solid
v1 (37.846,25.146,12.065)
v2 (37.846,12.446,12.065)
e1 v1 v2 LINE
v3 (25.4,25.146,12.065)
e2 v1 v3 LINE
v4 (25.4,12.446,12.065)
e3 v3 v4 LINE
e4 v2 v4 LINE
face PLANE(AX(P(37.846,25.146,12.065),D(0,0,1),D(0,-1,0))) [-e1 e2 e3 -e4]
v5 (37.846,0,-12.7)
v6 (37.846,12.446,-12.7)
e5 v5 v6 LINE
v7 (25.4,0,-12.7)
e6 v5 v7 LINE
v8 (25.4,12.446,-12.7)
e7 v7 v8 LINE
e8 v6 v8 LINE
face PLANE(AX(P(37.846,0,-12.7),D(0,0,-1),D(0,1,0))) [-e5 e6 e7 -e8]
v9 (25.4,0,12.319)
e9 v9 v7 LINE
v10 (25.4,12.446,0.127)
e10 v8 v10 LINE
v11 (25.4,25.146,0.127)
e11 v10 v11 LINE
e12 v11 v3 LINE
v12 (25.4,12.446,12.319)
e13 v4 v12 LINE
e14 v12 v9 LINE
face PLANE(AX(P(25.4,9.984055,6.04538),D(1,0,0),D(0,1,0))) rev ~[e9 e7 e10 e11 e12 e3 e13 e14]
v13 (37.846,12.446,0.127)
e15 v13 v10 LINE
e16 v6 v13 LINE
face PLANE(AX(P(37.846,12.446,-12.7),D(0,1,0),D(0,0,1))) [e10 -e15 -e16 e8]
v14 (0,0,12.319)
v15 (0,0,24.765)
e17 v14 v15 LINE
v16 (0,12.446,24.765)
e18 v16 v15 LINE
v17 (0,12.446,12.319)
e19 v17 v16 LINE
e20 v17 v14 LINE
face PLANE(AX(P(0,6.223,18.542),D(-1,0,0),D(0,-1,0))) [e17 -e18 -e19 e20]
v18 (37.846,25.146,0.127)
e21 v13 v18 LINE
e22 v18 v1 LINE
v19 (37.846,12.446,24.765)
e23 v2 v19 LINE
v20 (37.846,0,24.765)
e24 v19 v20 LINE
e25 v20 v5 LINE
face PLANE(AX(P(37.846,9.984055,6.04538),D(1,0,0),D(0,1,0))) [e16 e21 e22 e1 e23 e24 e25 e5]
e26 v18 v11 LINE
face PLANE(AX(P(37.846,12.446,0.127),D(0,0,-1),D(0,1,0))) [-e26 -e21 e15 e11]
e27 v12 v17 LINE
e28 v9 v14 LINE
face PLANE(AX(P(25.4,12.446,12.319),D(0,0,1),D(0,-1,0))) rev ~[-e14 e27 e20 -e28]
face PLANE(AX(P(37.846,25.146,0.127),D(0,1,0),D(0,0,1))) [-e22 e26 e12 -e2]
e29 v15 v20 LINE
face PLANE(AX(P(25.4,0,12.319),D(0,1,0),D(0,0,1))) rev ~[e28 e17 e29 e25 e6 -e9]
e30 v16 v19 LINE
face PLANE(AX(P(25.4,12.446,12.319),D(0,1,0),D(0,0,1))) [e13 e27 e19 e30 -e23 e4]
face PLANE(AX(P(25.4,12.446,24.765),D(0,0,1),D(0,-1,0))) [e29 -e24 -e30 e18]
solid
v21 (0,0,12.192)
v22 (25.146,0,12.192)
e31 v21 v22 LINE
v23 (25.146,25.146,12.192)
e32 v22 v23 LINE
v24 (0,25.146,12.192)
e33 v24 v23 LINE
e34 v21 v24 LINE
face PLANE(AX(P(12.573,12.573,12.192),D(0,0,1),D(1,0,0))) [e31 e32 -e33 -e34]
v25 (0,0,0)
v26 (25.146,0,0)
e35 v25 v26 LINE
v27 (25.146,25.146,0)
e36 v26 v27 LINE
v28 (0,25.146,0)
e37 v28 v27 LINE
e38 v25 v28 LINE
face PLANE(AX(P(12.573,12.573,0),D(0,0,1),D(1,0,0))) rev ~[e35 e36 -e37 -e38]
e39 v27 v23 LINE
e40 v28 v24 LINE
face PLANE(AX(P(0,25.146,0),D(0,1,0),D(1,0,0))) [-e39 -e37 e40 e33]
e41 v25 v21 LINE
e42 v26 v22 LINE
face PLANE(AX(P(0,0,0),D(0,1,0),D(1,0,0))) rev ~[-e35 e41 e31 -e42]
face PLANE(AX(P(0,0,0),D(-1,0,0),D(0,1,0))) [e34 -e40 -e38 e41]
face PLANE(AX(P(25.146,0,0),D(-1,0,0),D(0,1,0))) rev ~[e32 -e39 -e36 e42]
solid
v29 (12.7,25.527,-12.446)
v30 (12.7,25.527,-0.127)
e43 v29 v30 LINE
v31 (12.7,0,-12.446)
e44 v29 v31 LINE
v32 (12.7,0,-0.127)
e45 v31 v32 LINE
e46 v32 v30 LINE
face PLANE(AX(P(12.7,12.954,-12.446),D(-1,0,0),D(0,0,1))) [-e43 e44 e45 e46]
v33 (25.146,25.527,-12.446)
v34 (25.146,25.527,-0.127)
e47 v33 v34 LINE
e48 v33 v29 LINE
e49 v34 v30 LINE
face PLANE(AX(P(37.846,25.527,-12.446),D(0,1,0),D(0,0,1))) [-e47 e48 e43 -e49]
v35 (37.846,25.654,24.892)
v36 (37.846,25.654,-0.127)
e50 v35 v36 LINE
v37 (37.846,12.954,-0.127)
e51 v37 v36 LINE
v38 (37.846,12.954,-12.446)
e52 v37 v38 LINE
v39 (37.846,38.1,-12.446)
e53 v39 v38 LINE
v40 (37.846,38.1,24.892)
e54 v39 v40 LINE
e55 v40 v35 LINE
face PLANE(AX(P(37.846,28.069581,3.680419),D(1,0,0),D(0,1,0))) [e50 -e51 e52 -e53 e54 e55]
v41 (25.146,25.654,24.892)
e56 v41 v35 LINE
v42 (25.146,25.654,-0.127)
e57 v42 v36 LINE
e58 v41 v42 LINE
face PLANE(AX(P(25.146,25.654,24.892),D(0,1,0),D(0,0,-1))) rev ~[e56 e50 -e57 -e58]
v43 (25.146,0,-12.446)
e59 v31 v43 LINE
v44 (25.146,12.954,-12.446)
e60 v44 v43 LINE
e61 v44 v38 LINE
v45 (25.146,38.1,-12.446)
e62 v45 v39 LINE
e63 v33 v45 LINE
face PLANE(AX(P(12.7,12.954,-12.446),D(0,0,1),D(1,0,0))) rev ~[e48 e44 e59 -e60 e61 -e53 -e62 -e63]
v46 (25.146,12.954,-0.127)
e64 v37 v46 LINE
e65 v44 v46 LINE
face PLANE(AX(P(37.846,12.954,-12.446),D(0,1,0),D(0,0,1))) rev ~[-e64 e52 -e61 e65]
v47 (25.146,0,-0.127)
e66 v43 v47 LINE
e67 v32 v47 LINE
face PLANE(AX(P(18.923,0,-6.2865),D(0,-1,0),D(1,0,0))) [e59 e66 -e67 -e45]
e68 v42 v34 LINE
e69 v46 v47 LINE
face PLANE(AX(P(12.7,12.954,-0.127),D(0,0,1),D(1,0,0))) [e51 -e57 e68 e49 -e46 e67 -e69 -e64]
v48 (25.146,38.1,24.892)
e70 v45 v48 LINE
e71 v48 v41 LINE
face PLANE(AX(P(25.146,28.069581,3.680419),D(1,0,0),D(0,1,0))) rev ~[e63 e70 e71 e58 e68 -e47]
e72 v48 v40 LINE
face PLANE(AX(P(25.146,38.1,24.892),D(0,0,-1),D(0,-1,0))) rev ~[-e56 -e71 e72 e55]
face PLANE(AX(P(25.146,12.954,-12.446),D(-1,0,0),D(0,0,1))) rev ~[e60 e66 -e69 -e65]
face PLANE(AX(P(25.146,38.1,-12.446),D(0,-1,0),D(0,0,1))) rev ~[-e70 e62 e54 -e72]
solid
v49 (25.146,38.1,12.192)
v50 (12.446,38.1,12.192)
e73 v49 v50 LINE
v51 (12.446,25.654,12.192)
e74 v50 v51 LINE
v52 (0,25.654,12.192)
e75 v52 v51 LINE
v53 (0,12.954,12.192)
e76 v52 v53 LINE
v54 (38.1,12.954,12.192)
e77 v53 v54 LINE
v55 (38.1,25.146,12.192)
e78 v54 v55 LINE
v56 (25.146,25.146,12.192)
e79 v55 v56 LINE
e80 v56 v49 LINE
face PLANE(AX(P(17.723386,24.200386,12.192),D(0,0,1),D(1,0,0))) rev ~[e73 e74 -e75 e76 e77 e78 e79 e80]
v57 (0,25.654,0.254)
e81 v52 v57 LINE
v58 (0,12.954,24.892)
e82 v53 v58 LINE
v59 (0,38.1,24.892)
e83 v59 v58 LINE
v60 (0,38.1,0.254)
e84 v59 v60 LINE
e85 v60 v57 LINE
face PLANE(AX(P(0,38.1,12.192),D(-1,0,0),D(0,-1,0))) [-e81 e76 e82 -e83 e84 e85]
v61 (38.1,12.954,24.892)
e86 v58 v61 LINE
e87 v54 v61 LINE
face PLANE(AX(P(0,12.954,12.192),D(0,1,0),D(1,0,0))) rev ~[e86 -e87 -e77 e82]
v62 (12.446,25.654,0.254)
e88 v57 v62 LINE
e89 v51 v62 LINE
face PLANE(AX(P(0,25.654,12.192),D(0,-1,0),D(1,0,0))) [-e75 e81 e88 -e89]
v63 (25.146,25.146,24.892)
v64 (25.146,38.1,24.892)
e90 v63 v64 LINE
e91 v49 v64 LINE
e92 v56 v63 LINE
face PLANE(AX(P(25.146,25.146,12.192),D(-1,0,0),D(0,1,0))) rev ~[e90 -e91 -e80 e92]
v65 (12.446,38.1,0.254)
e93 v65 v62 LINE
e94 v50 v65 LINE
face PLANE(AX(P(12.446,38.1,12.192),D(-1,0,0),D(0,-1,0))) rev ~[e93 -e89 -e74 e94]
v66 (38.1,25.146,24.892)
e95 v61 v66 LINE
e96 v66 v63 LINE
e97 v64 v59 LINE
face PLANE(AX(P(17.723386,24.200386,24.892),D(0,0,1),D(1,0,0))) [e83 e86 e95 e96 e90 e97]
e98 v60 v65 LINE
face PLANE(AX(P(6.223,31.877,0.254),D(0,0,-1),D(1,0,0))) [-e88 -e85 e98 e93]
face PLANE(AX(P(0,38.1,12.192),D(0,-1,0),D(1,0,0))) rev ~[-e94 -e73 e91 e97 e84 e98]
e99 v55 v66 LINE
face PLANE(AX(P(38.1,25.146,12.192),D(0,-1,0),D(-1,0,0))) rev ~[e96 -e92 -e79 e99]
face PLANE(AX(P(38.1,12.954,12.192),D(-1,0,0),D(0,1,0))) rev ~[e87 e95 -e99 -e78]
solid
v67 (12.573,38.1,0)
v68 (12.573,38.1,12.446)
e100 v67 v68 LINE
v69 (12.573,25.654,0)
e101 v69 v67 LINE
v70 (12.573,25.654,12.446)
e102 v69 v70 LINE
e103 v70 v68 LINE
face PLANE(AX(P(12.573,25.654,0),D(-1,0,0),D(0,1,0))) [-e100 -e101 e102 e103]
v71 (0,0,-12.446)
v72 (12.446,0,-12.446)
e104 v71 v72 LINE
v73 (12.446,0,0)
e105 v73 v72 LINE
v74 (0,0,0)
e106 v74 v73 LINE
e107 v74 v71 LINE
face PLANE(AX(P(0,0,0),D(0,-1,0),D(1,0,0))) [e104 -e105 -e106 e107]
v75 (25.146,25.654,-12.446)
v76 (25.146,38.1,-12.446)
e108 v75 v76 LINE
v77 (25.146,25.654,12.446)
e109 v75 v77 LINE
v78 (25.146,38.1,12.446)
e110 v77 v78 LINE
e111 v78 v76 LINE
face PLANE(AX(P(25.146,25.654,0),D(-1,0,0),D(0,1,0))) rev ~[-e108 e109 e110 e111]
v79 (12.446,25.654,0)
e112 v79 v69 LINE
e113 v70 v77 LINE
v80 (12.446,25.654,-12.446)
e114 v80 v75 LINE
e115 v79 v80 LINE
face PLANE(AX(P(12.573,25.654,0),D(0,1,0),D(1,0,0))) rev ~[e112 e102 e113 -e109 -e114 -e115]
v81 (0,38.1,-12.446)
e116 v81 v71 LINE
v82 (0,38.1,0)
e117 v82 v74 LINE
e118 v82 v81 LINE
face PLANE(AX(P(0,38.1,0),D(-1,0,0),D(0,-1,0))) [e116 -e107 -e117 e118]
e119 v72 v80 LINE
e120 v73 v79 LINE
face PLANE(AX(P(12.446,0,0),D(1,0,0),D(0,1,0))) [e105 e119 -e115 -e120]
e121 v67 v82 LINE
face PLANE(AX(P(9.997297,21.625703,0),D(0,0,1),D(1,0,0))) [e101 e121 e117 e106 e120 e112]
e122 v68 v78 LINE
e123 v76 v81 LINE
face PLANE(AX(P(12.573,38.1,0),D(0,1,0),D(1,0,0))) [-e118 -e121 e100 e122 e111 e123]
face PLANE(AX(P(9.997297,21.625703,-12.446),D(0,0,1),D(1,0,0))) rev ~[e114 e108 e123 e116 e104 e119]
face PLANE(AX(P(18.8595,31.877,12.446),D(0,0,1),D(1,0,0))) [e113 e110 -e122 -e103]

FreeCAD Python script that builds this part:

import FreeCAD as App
import Part
import Sketcher
Q = App.Units.Quantity


def add_polygon(sketch, points):
    """Adds a closed chain of lines whose ends are joined by coincident constraints."""
    first, n = sketch.GeometryCount, len(points)
    for a, b in zip(points, points[1:] + points[:1]):
        sketch.addGeometry(Part.LineSegment(App.Vector(*a, 0), App.Vector(*b, 0)), False)
    for i in range(n):
        sketch.addConstraint(Sketcher.Constraint("Coincident", first + i, 2, first + (i + 1) % n, 1))

doc = App.newDocument("Part")
params = doc.addObject("Spreadsheet::Sheet", "Params")
for row, (alias, value) in enumerate([
    ("sketch1_width", "0.99 in"),
    ("pad1_length", "0.48 in"),
    ("sketch2_width", "0.5 in"),
    ("sketch2_height", "1.5 in"),
    ("sketch2_width2", "0.49 in"),
    ("pad2_length", "0.49 in"),
    ("sketch3_height", "0.49 in"),
    ("sketch3_width", "0.495 in"),
    ("pad3_length", "0.49 in"),
    ("sketch4_width", "1.5 in"),
    ("sketch4_width2", "0.99 in"),
    ("pad4_length", "0.5 in"),
    ("sketch5_width", "0.49 in"),
    ("pad5_length", "0.47 in"),
    ("sketch6_width", "0.5 in"),
    ("sketch6_width2", "0.99 in"),
    ("sketch6_height", "1.47 in"),
    ("sketch6_height2", "0.985 in"),
    ("pad6_length", "0.5 in"),
    ("sketch7_width", "0.495 in"),
    ("sketch7_height", "0.485 in"),
    ("pad7_length", "0.99 in"),
    ("sketch8_width", "0.49 in"),
    ("sketch8_height", "0.485 in"),
    ("pad8_length", "0.51 in"),
    ("sketch9_width", "0.5 in"),
    ("sketch9_width2", "0.49 in"),
    ("sketch9_height", "0.47 in"),
    ("sketch9_height2", "1.475 in"),
    ("pad9_length", "0.49 in"),
    ("sketch10_width", "0.49 in"),
    ("pad10_length", "1 in"),
], start=1):
    params.set(f"A{row}", alias)
    params.set(f"B{row}", "=" + value)
    params.setAlias(f"B{row}", alias)

body = doc.addObject("PartDesign::Body", "Body")

# Sketch on XY plane
sketch1 = body.newObject("Sketcher::SketchObject", "Sketch")
sketch1.AttachmentSupport = (doc.getObject("XY_Plane"), [""])
sketch1.MapMode = "FlatFace"
add_polygon(sketch1, [(0, 25), (0, 0), (25, 0), (25, 25)])  # lines 0-3
sketch1.addConstraint([
    Sketcher.Constraint("Vertical", 0),
    Sketcher.Constraint("Horizontal", 1),
    Sketcher.Constraint("Vertical", 2),
    Sketcher.Constraint("Horizontal", 3),
    Sketcher.Constraint("Coincident", 0, 2, -1, 1),
    Sketcher.Constraint("Equal", 3, 0),
    Sketcher.Constraint("DistanceX", 1, 1, 1, 2, Q("0.99 in")),
])
sketch1.setExpression("Constraints[10]", "Params.sketch1_width")
pad1 = body.newObject("PartDesign::Pad", "Pad")
pad1.Profile = sketch1
pad1.setExpression("Length", "Params.pad1_length")
body2 = doc.addObject("PartDesign::Body", "Body001")

# Sketch on XY plane
sketch2 = body2.newObject("Sketcher::SketchObject", "Sketch001")
sketch2.AttachmentSupport = (doc.getObject("XY_Plane001"), [""])
sketch2.MapMode = "FlatFace"
add_polygon(sketch2, [(0, 38), (0, 0), (12, 0), (12, 26), (25, 26), (25, 38)])  # lines 0-5
sketch2.addConstraint([
    Sketcher.Constraint("Vertical", 0),
    Sketcher.Constraint("Horizontal", 1),
    Sketcher.Constraint("Vertical", 2),
    Sketcher.Constraint("Horizontal", 3),
    Sketcher.Constraint("Vertical", 4),
    Sketcher.Constraint("Horizontal", 5),
    Sketcher.Constraint("Coincident", 0, 2, -1, 1),
    Sketcher.Constraint("Equal", 1, 4),
    Sketcher.Constraint("DistanceX", 3, 1, 3, 2, Q("0.5 in")),
    Sketcher.Constraint("DistanceY", 0, 2, 0, 1, Q("1.5 in")),
    Sketcher.Constraint("DistanceX", 1, 1, 1, 2, Q("0.49 in")),
])
sketch2.setExpression("Constraints[14]", "Params.sketch2_width")
sketch2.setExpression("Constraints[15]", "Params.sketch2_height")
sketch2.setExpression("Constraints[16]", "Params.sketch2_width2")
pad2 = body2.newObject("PartDesign::Pad", "Pad001")
pad2.Profile = sketch2
pad2.setExpression("Length", "Params.pad2_length")
pad2.Reversed = True

# Sketch on XY plane
sketch3 = body2.newObject("Sketcher::SketchObject", "Sketch002")
sketch3.AttachmentSupport = (doc.getObject("XY_Plane001"), [""])
sketch3.MapMode = "FlatFace"
add_polygon(sketch3, [(13, 38), (13, 26), (25, 26), (25, 38)])  # lines 0-3
sketch3.addConstraint([
    Sketcher.Constraint("Vertical", 0),
    Sketcher.Constraint("Horizontal", 1),
    Sketcher.Constraint("Vertical", 2),
    Sketcher.Constraint("Horizontal", 3),
    Sketcher.Constraint("DistanceY", 0, 2, 0, 1, Q("0.49 in")),
    Sketcher.Constraint("DistanceY", -1, 1, 2, 2, Q("1.5 in")),
    Sketcher.Constraint("DistanceX", 1, 1, 1, 2, Q("0.495 in")),
    Sketcher.Constraint("DistanceX", -1, 1, 1, 2, Q("0.99 in")),
])
sketch3.setExpression("Constraints[8]", "Params.sketch3_height")
sketch3.setExpression("Constraints[10]", "Params.sketch3_width")
pad3 = body2.newObject("PartDesign::Pad", "Pad002")
pad3.Profile = sketch3
pad3.setExpression("Length", "Params.pad3_length")
body3 = doc.addObject("PartDesign::Body", "Body002")

# Sketch on XY plane
sketch4 = body3.newObject("Sketcher::SketchObject", "Sketch003")
sketch4.AttachmentSupport = (doc.getObject("XY_Plane002"), [""])
sketch4.MapMode = "FlatFace"
sketch4.AttachmentOffset = App.Placement(App.Vector(0, 0, 0.48 * 25.4), App.Rotation())
add_polygon(sketch4, [(25, 38), (0, 38), (0, 13), (38, 13), (38, 25), (25, 25)])  # lines 0-5
sketch4.addConstraint([
    Sketcher.Constraint("Horizontal", 0),
    Sketcher.Constraint("Vertical", 1),
    Sketcher.Constraint("Horizontal", 2),
    Sketcher.Constraint("Vertical", 3),
    Sketcher.Constraint("Horizontal", 4),
    Sketcher.Constraint("Vertical", 5),
    Sketcher.Constraint("PointOnObject", 0, 2, -2),
    Sketcher.Constraint("Equal", 0, 1),
    Sketcher.Constraint("Equal", 4, 5),
    Sketcher.Constraint("DistanceX", 2, 1, 2, 2, Q("1.5 in")),
    Sketcher.Constraint("DistanceX", 0, 2, 0, 1, Q("0.99 in")),
    Sketcher.Constraint("DistanceY", -1, 1, 0, 2, Q("1.5 in")),
])
sketch4.setExpression("Constraints[15]", "Params.sketch4_width")
sketch4.setExpression("Constraints[16]", "Params.sketch4_width2")
pad4 = body3.newObject("PartDesign::Pad", "Pad003")
pad4.Profile = sketch4
pad4.setExpression("Length", "Params.pad4_length")

# Sketch on XY plane
sketch5 = body3.newObject("Sketcher::SketchObject", "Sketch004")
sketch5.AttachmentSupport = (doc.getObject("XY_Plane002"), [""])
sketch5.MapMode = "FlatFace"
sketch5.AttachmentOffset = App.Placement(App.Vector(0, 0, 0.48 * 25.4), App.Rotation())
add_polygon(sketch5, [(0, 26), (0, 38), (12, 38), (12, 26)])  # lines 0-3
sketch5.addConstraint([
    Sketcher.Constraint("Vertical", 0),
    Sketcher.Constraint("Horizontal", 1),
    Sketcher.Constraint("Vertical", 2),
    Sketcher.Constraint("Horizontal", 3),
    Sketcher.Constraint("PointOnObject", 0, 2, -2),
    Sketcher.Constraint("Equal", 3, 0),
    Sketcher.Constraint("DistanceX", 1, 1, 1, 2, Q("0.49 in")),
    Sketcher.Constraint("DistanceY", -1, 1, 0, 2, Q("1.5 in")),
])
sketch5.setExpression("Constraints[10]", "Params.sketch5_width")
pad5 = body3.newObject("PartDesign::Pad", "Pad004")
pad5.Profile = sketch5
pad5.setExpression("Length", "Params.pad5_length")
pad5.Reversed = True
body4 = doc.addObject("PartDesign::Body", "Body003")

# Sketch on YZ plane
sketch6 = body4.newObject("Sketcher::SketchObject", "Sketch005")
sketch6.AttachmentSupport = (doc.getObject("YZ_Plane003"), [""])
sketch6.MapMode = "FlatFace"
sketch6.AttachmentOffset = App.Placement(App.Vector(0, 0, 0.99 * 25.4), App.Rotation())
add_polygon(sketch6, [(13, -12), (38, -12), (38, 25), (26, 25), (26, 0), (13, 0)])  # lines 0-5
sketch6.addConstraint([
    Sketcher.Constraint("Horizontal", 0),
    Sketcher.Constraint("Vertical", 1),
    Sketcher.Constraint("Horizontal", 2),
    Sketcher.Constraint("Vertical", 3),
    Sketcher.Constraint("Horizontal", 4),
    Sketcher.Constraint("Vertical", 5),
    Sketcher.Constraint("DistanceX", 4, 2, 4, 1, Q("0.5 in")),
    Sketcher.Constraint("DistanceX", 0, 1, 0, 2, Q("0.99 in")),
    Sketcher.Constraint("DistanceY", 1, 1, 1, 2, Q("1.47 in")),
    Sketcher.Constraint("DistanceX", -1, 1, 0, 2, Q("1.5 in")),
    Sketcher.Constraint("DistanceY", 3, 2, 3, 1, Q("0.985 in")),
    Sketcher.Constraint("DistanceY", 0, 2, -1, 1, Q("0.49 in")),
])
sketch6.setExpression("Constraints[12]", "Params.sketch6_width")
sketch6.setExpression("Constraints[13]", "Params.sketch6_width2")
sketch6.setExpression("Constraints[14]", "Params.sketch6_height")
sketch6.setExpression("Constraints[16]", "Params.sketch6_height2")
pad6 = body4.newObject("PartDesign::Pad", "Pad005")
pad6.Profile = sketch6
pad6.setExpression("Length", "Params.pad6_length")

# Sketch on YZ plane
sketch7 = body4.newObject("Sketcher::SketchObject", "Sketch006")
sketch7.AttachmentSupport = (doc.getObject("YZ_Plane003"), [""])
sketch7.MapMode = "FlatFace"
sketch7.AttachmentOffset = App.Placement(App.Vector(0, 0, 1.49 * 25.4), App.Rotation())
add_polygon(sketch7, [(13, 0), (13, -12), (26, -12), (26, 0)])  # lines 0-3
sketch7.addConstraint([
    Sketcher.Constraint("Vertical", 0),
    Sketcher.Constraint("Horizontal", 1),
    Sketcher.Constraint("Vertical", 2),
    Sketcher.Constraint("Horizontal", 3),
    Sketcher.Constraint("DistanceX", 1, 1, 1, 2, Q("0.495 in")),
    Sketcher.Constraint("DistanceY", 0, 2, 0, 1, Q("0.485 in")),
    Sketcher.Constraint("DistanceX", -1, 1, 0, 2, Q("0.51 in")),
    Sketcher.Constraint("DistanceY", 0, 2, -1, 1, Q("0.49 in")),
])
sketch7.setExpression("Constraints[8]", "Params.sketch7_width")
sketch7.setExpression("Constraints[9]", "Params.sketch7_height")
pad7 = body4.newObject("PartDesign::Pad", "Pad006")
pad7.Profile = sketch7
pad7.setExpression("Length", "Params.pad7_length")
pad7.Reversed = True

# Sketch on XZ plane
sketch8 = body4.newObject("Sketcher::SketchObject", "Sketch007")
sketch8.AttachmentSupport = (doc.getObject("XZ_Plane003"), [""])
sketch8.MapMode = "FlatFace"
sketch8.AttachmentOffset = App.Placement(App.Vector(0, 0, -0.51 * 25.4), App.Rotation())
add_polygon(sketch8, [(13, 0), (13, -12), (25, -12), (25, 0)])  # lines 0-3
sketch8.addConstraint([
    Sketcher.Constraint("Vertical", 0),
    Sketcher.Constraint("Horizontal", 1),
    Sketcher.Constraint("Vertical", 2),
    Sketcher.Constraint("Horizontal", 3),
    Sketcher.Constraint("DistanceX", 1, 1, 1, 2, Q("0.49 in")),
    Sketcher.Constraint("DistanceX", -1, 1, 0, 2, Q("0.5 in")),
    Sketcher.Constraint("DistanceY", 0, 2, 0, 1, Q("0.485 in")),
    Sketcher.Constraint("DistanceY", 0, 2, -1, 1, Q("0.49 in")),
])
sketch8.setExpression("Constraints[8]", "Params.sketch8_width")
sketch8.setExpression("Constraints[10]", "Params.sketch8_height")
pad8 = body4.newObject("PartDesign::Pad", "Pad007")
pad8.Profile = sketch8
pad8.setExpression("Length", "Params.pad8_length")
body5 = doc.addObject("PartDesign::Body", "Body004")

# Sketch on YZ plane
sketch9 = body5.newObject("Sketcher::SketchObject", "Sketch008")
sketch9.AttachmentSupport = (doc.getObject("YZ_Plane004"), [""])
sketch9.MapMode = "FlatFace"
sketch9.AttachmentOffset = App.Placement(App.Vector(0, 0, 1.49 * 25.4), App.Rotation())
add_polygon(sketch9, [(0, 25), (0, -13), (12, -13), (12, 0), (25, 0), (25, 12), (12, 12), (12, 25)])  # lines 0-7
sketch9.addConstraint([
    Sketcher.Constraint("Vertical", 0),
    Sketcher.Constraint("Horizontal", 1),
    Sketcher.Constraint("Vertical", 2),
    Sketcher.Constraint("Horizontal", 3),
    Sketcher.Constraint("Vertical", 4),
    Sketcher.Constraint("Horizontal", 5),
    Sketcher.Constraint("Vertical", 6),
    Sketcher.Constraint("Horizontal", 7),
    Sketcher.Constraint("PointOnObject", 0, 2, -2),
    Sketcher.Constraint("Vertical", 2, 2, 5, 2),
    Sketcher.Constraint("Equal", 5, 6),
    Sketcher.Constraint("DistanceX", 3, 1, 3, 2, Q("0.5 in")),
    Sketcher.Constraint("DistanceX", 1, 1, 1, 2, Q("0.49 in")),
    Sketcher.Constraint("DistanceY", 4, 1, 4, 2, Q("0.47 in")),
    Sketcher.Constraint("DistanceY", 0, 2, -1, 1, Q("0.5 in")),
    Sketcher.Constraint("DistanceY", 0, 2, 0, 1, Q("1.475 in")),
])
sketch9.setExpression("Constraints[19]", "Params.sketch9_width")
sketch9.setExpression("Constraints[20]", "Params.sketch9_width2")
sketch9.setExpression("Constraints[21]", "Params.sketch9_height")
sketch9.setExpression("Constraints[23]", "Params.sketch9_height2")
pad9 = body5.newObject("PartDesign::Pad", "Pad008")
pad9.Profile = sketch9
pad9.setExpression("Length", "Params.pad9_length")
pad9.Reversed = True

# Sketch on YZ plane
sketch10 = body5.newObject("Sketcher::SketchObject", "Sketch009")
sketch10.AttachmentSupport = (doc.getObject("YZ_Plane004"), [""])
sketch10.MapMode = "FlatFace"
sketch10.AttachmentOffset = App.Placement(App.Vector(0, 0, 1 * 25.4), App.Rotation())
add_polygon(sketch10, [(12, 25), (12, 12), (0, 12), (0, 25)])  # lines 0-3
sketch10.addConstraint([
    Sketcher.Constraint("Vertical", 0),
    Sketcher.Constraint("Horizontal", 1),
    Sketcher.Constraint("Vertical", 2),
    Sketcher.Constraint("Horizontal", 3),
    Sketcher.Constraint("PointOnObject", 1, 2, -2),
    Sketcher.Constraint("Equal", 3, 0),
    Sketcher.Constraint("DistanceX", 1, 2, 1, 1, Q("0.49 in")),
    Sketcher.Constraint("DistanceY", -1, 1, 0, 2, Q("0.485 in")),
])
sketch10.setExpression("Constraints[10]", "Params.sketch10_width")
pad10 = body5.newObject("PartDesign::Pad", "Pad009")
pad10.Profile = sketch10
pad10.setExpression("Length", "Params.pad10_length")
pad10.Reversed = True

doc.recompute()
